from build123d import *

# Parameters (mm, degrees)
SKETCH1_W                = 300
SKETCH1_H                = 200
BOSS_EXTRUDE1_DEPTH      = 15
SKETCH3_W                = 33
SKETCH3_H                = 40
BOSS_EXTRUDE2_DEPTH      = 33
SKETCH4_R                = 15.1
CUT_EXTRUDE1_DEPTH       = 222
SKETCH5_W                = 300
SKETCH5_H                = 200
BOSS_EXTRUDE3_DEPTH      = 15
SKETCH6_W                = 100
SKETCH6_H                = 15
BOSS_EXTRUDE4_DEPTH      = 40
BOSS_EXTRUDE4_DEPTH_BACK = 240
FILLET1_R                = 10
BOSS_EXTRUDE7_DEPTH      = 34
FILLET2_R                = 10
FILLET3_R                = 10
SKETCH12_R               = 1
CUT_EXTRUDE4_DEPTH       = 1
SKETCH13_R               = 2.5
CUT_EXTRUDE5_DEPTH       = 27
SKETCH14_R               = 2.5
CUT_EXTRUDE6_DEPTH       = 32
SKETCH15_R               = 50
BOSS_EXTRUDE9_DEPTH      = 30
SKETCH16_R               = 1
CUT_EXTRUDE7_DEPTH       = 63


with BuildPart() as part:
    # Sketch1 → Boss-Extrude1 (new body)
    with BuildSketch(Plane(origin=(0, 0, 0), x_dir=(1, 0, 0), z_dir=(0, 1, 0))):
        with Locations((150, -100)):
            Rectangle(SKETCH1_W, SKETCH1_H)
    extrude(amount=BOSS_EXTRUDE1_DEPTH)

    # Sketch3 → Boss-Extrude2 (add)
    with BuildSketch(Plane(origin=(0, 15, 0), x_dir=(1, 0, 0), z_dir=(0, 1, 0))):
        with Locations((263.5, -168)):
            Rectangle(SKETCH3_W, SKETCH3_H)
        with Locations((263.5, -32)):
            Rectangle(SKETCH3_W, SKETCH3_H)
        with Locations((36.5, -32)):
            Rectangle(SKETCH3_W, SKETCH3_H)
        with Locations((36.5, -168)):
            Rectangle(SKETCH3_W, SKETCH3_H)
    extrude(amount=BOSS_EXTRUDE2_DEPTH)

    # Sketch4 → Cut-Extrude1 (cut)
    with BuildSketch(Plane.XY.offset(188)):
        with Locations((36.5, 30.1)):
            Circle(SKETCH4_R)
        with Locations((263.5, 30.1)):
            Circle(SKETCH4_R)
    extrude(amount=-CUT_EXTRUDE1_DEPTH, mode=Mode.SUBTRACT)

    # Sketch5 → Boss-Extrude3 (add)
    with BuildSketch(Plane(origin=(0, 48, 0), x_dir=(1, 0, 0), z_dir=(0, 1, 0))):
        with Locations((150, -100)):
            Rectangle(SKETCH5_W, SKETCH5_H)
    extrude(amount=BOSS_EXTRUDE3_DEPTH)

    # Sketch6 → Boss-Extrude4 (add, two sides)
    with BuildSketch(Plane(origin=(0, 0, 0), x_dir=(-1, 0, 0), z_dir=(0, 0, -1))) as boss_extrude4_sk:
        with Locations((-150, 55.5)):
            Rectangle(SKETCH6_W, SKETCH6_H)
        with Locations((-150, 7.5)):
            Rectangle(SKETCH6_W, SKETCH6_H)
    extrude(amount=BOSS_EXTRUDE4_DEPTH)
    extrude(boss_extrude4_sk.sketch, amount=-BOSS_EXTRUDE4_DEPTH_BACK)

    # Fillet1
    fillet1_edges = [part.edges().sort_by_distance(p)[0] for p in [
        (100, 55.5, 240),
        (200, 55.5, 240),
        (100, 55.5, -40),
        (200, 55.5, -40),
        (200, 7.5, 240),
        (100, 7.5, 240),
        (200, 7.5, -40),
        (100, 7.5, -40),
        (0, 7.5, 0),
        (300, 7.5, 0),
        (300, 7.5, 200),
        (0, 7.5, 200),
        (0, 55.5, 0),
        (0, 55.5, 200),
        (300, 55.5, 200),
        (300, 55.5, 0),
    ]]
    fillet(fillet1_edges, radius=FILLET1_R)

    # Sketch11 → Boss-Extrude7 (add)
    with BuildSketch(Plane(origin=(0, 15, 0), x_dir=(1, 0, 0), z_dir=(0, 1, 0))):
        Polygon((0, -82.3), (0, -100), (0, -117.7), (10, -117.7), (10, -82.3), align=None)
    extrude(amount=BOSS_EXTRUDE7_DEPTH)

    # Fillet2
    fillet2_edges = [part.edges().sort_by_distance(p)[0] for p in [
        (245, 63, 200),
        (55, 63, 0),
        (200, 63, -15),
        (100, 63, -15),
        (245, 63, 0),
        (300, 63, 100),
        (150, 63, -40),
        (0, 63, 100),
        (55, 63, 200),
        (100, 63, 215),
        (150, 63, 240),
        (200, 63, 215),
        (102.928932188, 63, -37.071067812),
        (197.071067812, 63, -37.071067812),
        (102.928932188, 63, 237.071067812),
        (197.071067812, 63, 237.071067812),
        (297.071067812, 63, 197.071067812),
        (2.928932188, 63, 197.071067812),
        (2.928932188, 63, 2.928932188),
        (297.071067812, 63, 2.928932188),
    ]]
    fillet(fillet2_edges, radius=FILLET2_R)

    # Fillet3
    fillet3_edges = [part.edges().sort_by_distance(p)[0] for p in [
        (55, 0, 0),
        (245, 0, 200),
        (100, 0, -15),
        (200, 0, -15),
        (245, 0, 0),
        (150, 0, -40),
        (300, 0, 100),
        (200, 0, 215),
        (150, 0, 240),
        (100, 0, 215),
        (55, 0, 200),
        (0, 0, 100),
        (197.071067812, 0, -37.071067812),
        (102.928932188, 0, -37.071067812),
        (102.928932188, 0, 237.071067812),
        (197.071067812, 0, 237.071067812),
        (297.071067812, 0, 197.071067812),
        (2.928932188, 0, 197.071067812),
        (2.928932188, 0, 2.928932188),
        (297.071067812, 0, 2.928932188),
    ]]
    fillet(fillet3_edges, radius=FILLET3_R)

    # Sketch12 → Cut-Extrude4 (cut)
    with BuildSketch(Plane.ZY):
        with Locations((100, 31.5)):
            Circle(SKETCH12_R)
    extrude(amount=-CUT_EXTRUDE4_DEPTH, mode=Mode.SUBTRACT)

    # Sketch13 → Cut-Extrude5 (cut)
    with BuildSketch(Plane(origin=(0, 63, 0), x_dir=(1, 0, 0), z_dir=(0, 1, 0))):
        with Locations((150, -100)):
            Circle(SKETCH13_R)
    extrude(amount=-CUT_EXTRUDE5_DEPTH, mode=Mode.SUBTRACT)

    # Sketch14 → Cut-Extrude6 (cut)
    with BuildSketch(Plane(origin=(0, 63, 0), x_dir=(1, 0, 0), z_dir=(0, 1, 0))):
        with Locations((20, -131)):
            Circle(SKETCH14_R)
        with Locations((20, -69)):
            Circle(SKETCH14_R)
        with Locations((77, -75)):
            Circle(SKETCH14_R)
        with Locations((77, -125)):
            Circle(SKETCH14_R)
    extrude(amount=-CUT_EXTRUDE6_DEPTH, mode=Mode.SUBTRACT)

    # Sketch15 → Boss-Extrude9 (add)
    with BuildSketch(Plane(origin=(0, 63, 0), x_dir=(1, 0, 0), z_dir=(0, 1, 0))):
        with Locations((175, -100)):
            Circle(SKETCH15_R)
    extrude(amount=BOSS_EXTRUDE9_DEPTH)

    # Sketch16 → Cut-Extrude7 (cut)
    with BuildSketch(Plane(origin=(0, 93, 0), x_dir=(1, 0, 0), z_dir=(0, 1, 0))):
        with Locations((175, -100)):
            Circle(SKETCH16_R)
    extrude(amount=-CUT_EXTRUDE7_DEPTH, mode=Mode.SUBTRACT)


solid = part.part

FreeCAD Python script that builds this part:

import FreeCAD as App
import Part
import Sketcher
from FreeCAD import Vector


def edges_at(feature, points):
    """Names of the edges that pass closest to the given points."""
    edges = feature.Shape.Edges
    near = lambda p: min(range(len(edges)), key=lambda i: edges[i].distToShape(Part.Vertex(*p))[0])
    return sorted({f"Edge{near(p) + 1}" for p in points})


def add_polygon(sketch, points):
    """Adds a closed chain of lines whose ends are joined by coincident constraints."""
    first, n = sketch.GeometryCount, len(points)
    for a, b in zip(points, points[1:] + points[:1]):
        sketch.addGeometry(Part.LineSegment(App.Vector(*a, 0), App.Vector(*b, 0)), False)
    for i in range(n):
        sketch.addConstraint(Sketcher.Constraint("Coincident", first + i, 2, first + (i + 1) % n, 1))

doc = App.newDocument("Part")
body = doc.addObject("PartDesign::Body", "Body")

sketch1 = body.newObject("Sketcher::SketchObject", "Sketch")
sketch1.AttachmentSupport = (doc.getObject("XZ_Plane"), [""])
sketch1.MapMode = "FlatFace"
add_polygon(sketch1, [(0, 0), (0, 200), (300, 200), (300, 0)])
sketch1.addConstraint(Sketcher.Constraint("Vertical", 0))
sketch1.addConstraint(Sketcher.Constraint("Horizontal", 1))
sketch1.addConstraint(Sketcher.Constraint("Vertical", 2))
sketch1.addConstraint(Sketcher.Constraint("Horizontal", 3))
sketch1.addConstraint(Sketcher.Constraint("Coincident", 3, 2, -1, 1))
sketch1.addConstraint(Sketcher.Constraint("DistanceX", 1, 1, 1, 2, 300.0))
sketch1.addConstraint(Sketcher.Constraint("DistanceY", 0, 1, 0, 2, 200.0))
pad1 = body.newObject("PartDesign::Pad", "Pad")
pad1.Profile = sketch1
pad1.Length = 15
pad1.Reversed = True

sketch2 = body.newObject("Sketcher::SketchObject", "Sketch001")
sketch2.AttachmentSupport = (doc.getObject("XZ_Plane"), [""])
sketch2.MapMode = "FlatFace"
sketch2.AttachmentOffset = App.Placement(Vector(0, 0, -15), App.Rotation())
add_polygon(sketch2, [(247, 148), (247, 188), (280, 188), (280, 148)])
add_polygon(sketch2, [(247, 12), (247, 52), (280, 52), (280, 12)])
add_polygon(sketch2, [(20, 12), (20, 52), (53, 52), (53, 12)])
add_polygon(sketch2, [(20, 148), (20, 188), (53, 188), (53, 148)])
sketch2.addConstraint(Sketcher.Constraint("Vertical", 0))
sketch2.addConstraint(Sketcher.Constraint("Horizontal", 1))
sketch2.addConstraint(Sketcher.Constraint("Vertical", 2))
sketch2.addConstraint(Sketcher.Constraint("Horizontal", 3))
sketch2.addConstraint(Sketcher.Constraint("Vertical", 4))
sketch2.addConstraint(Sketcher.Constraint("Horizontal", 5))
sketch2.addConstraint(Sketcher.Constraint("Vertical", 6))
sketch2.addConstraint(Sketcher.Constraint("Horizontal", 7))
sketch2.addConstraint(Sketcher.Constraint("Vertical", 8))
sketch2.addConstraint(Sketcher.Constraint("Horizontal", 9))
sketch2.addConstraint(Sketcher.Constraint("Vertical", 10))
sketch2.addConstraint(Sketcher.Constraint("Horizontal", 11))
sketch2.addConstraint(Sketcher.Constraint("Vertical", 12))
sketch2.addConstraint(Sketcher.Constraint("Horizontal", 13))
sketch2.addConstraint(Sketcher.Constraint("Vertical", 14))
sketch2.addConstraint(Sketcher.Constraint("Horizontal", 15))
sketch2.addConstraint(Sketcher.Constraint("Horizontal", 5, 2, 8, 2))
sketch2.addConstraint(Sketcher.Constraint("Horizontal", 7, 2, 10, 2))
sketch2.addConstraint(Sketcher.Constraint("Horizontal", 1, 2, 12, 2))
sketch2.addConstraint(Sketcher.Constraint("Horizontal", 3, 2, 14, 2))
sketch2.addConstraint(Sketcher.Constraint("Vertical", 3, 2, 4, 2))
sketch2.addConstraint(Sketcher.Constraint("Vertical", 2, 2, 5, 2))
sketch2.addConstraint(Sketcher.Constraint("Vertical", 11, 2, 12, 2))
sketch2.addConstraint(Sketcher.Constraint("Vertical", 10, 2, 13, 2))
sketch2.addConstraint(Sketcher.Constraint("Equal", 7, 9))
sketch2.addConstraint(Sketcher.Constraint("Equal", 2, 4))
sketch2.addConstraint(Sketcher.Constraint("DistanceX", 1, 1, 1, 2, 33.0))
sketch2.addConstraint(Sketcher.Constraint("DistanceY", 0, 1, 0, 2, 40.0))
sketch2.addConstraint(Sketcher.Constraint("DistanceX", -1, 1, 0, 2, 247.0))
sketch2.addConstraint(Sketcher.Constraint("DistanceY", -1, 1, 0, 2, 188.0))
sketch2.addConstraint(Sketcher.Constraint("DistanceY", -1, 1, 4, 2, 52.0))
sketch2.addConstraint(Sketcher.Constraint("DistanceX", -1, 1, 8, 2, 20.0))
pad2 = body.newObject("PartDesign::Pad", "Pad001")
pad2.Profile = sketch2
pad2.Length = 33
pad2.Reversed = True

sketch3 = body.newObject("Sketcher::SketchObject", "Sketch002")
sketch3.AttachmentSupport = (doc.getObject("XY_Plane"), [""])
sketch3.MapMode = "FlatFace"
sketch3.AttachmentOffset = App.Placement(Vector(0, 0, 188), App.Rotation())
sketch3.addGeometry(Part.Circle(Vector(36, 30, 0), Vector(0, 0, 1), 15), False)
sketch3.addGeometry(Part.Circle(Vector(264, 30, 0), Vector(0, 0, 1), 15), False)
sketch3.addConstraint(Sketcher.Constraint("Equal", 0, 1))
sketch3.addConstraint(Sketcher.Constraint("Horizontal", 0, 3, 1, 3))
sketch3.addConstraint(Sketcher.Constraint("Diameter", 0, 30.2))
sketch3.addConstraint(Sketcher.Constraint("DistanceX", 0, 3, 1, 3, 227.0))
sketch3.addConstraint(Sketcher.Constraint("DistanceX", -1, 1, 0, 3, 36.5))
sketch3.addConstraint(Sketcher.Constraint("DistanceY", -1, 1, 0, 3, 30.1))
pocket1 = body.newObject("PartDesign::Pocket", "Pocket")
pocket1.Profile = sketch3
pocket1.Length = 222

sketch4 = body.newObject("Sketcher::SketchObject", "Sketch003")
sketch4.AttachmentSupport = (doc.getObject("XZ_Plane"), [""])
sketch4.MapMode = "FlatFace"
sketch4.AttachmentOffset = App.Placement(Vector(0, 0, -48), App.Rotation())
add_polygon(sketch4, [(0, 0), (0, 200), (300, 200), (300, 0)])
sketch4.addConstraint(Sketcher.Constraint("Vertical", 0))
sketch4.addConstraint(Sketcher.Constraint("Horizontal", 1))
sketch4.addConstraint(Sketcher.Constraint("Vertical", 2))
sketch4.addConstraint(Sketcher.Constraint("Horizontal", 3))
sketch4.addConstraint(Sketcher.Constraint("Coincident", 3, 2, -1, 1))
sketch4.addConstraint(Sketcher.Constraint("DistanceX", 1, 1, 1, 2, 300.0))
sketch4.addConstraint(Sketcher.Constraint("DistanceY", 0, 1, 0, 2, 200.0))
pad3 = body.newObject("PartDesign::Pad", "Pad002")
pad3.Profile = sketch4
pad3.Length = 15
pad3.Reversed = True

sketch5 = body.newObject("Sketcher::SketchObject", "Sketch004")
sketch5.AttachmentSupport = (doc.getObject("XY_Plane"), [""])
sketch5.MapMode = "FlatFace"
add_polygon(sketch5, [(200, 63), (200, 48), (100, 48), (100, 63)])
add_polygon(sketch5, [(200, 15), (200, 0), (100, 0), (100, 15)])
sketch5.addConstraint(Sketcher.Constraint("Vertical", 0))
sketch5.addConstraint(Sketcher.Constraint("Horizontal", 1))
sketch5.addConstraint(Sketcher.Constraint("Vertical", 2))
sketch5.addConstraint(Sketcher.Constraint("Horizontal", 3))
sketch5.addConstraint(Sketcher.Constraint("Vertical", 4))
sketch5.addConstraint(Sketcher.Constraint("Horizontal", 5))
sketch5.addConstraint(Sketcher.Constraint("Vertical", 6))
sketch5.addConstraint(Sketcher.Constraint("Horizontal", 7))
sketch5.addConstraint(Sketcher.Constraint("PointOnObject", 4, 2, -1))
sketch5.addConstraint(Sketcher.Constraint("Vertical", 3, 2, 4, 2))
sketch5.addConstraint(Sketcher.Constraint("Vertical", 2, 2, 5, 2))
sketch5.addConstraint(Sketcher.Constraint("Equal", 2, 4))
sketch5.addConstraint(Sketcher.Constraint("DistanceX", 1, 2, 1, 1, 100.0))
sketch5.addConstraint(Sketcher.Constraint("DistanceY", 0, 2, 0, 1, 15.0))
sketch5.addConstraint(Sketcher.Constraint("DistanceX", -1, 1, 0, 2, 200.0))
sketch5.addConstraint(Sketcher.Constraint("DistanceY", -1, 1, 0, 2, 48.0))
pad4 = body.newObject("PartDesign::Pad", "Pad003")
pad4.Profile = sketch5
pad4.Type = "TwoLengths"
pad4.Length = 40
pad4.Length2 = 240
pad4.Reversed = True
doc.recompute()

fillet = body.newObject("PartDesign::Fillet", "Fillet")
fillet.Base = (pad4, edges_at(pad4, [
    (100, 55.5, 240),
    (200, 55.5, 240),
    (100, 55.5, -40),
    (200, 55.5, -40),
    (200, 7.5, 240),
    (100, 7.5, 240),
    (200, 7.5, -40),
    (100, 7.5, -40),
    (0, 7.5, 0),
    (300, 7.5, 0),
    (300, 7.5, 200),
    (0, 7.5, 200),
    (0, 55.5, 0),
    (0, 55.5, 200),
    (300, 55.5, 200),
    (300, 55.5, 0),
]))
fillet.Radius = 10

sketch6 = body.newObject("Sketcher::SketchObject", "Sketch005")
sketch6.AttachmentSupport = (doc.getObject("XZ_Plane"), [""])
sketch6.MapMode = "FlatFace"
sketch6.AttachmentOffset = App.Placement(Vector(0, 0, -15), App.Rotation())
add_polygon(sketch6, [(0, 82), (0, 118), (10, 118), (10, 82)])
sketch6.addConstraint(Sketcher.Constraint("Vertical", 0))
sketch6.addConstraint(Sketcher.Constraint("Horizontal", 1))
sketch6.addConstraint(Sketcher.Constraint("Vertical", 2))
sketch6.addConstraint(Sketcher.Constraint("Horizontal", 3))
sketch6.addConstraint(Sketcher.Constraint("PointOnObject", 0, 2, -2))
sketch6.addConstraint(Sketcher.Constraint("DistanceX", 1, 1, 1, 2, 10.0))
sketch6.addConstraint(Sketcher.Constraint("DistanceY", 0, 1, 0, 2, 35.4))
sketch6.addConstraint(Sketcher.Constraint("DistanceY", -1, 1, 0, 2, 117.7))
pad5 = body.newObject("PartDesign::Pad", "Pad004")
pad5.Profile = sketch6
pad5.Length = 34
pad5.Reversed = True
doc.recompute()

fillet2 = body.newObject("PartDesign::Fillet", "Fillet001")
fillet2.Base = (pad5, edges_at(pad5, [
    (245, 63, 200),
    (55, 63, 0),
    (200, 63, -15),
    (100, 63, -15),
    (245, 63, 0),
    (300, 63, 100),
    (150, 63, -40),
    (0, 63, 100),
    (55, 63, 200),
    (100, 63, 215),
    (150, 63, 240),
    (200, 63, 215),
    (102.929, 63, -37.071),
    (197.071, 63, -37.071),
    (102.929, 63, 237.071),
    (197.071, 63, 237.071),
    (297.071, 63, 197.071),
    (2.929, 63, 197.071),
    (2.929, 63, 2.929),
    (297.071, 63, 2.929),
]))
fillet2.Radius = 10
doc.recompute()

fillet3 = body.newObject("PartDesign::Fillet", "Fillet002")
fillet3.Base = (fillet2, edges_at(fillet2, [
    (55, 0, 0),
    (245, 0, 200),
    (100, 0, -15),
    (200, 0, -15),
    (245, 0, 0),
    (150, 0, -40),
    (300, 0, 100),
    (200, 0, 215),
    (150, 0, 240),
    (100, 0, 215),
    (55, 0, 200),
    (0, 0, 100),
    (197.071, 0, -37.071),
    (102.929, 0, -37.071),
    (102.929, 0, 237.071),
    (197.071, 0, 237.071),
    (297.071, 0, 197.071),
    (2.929, 0, 197.071),
    (2.929, 0, 2.929),
    (297.071, 0, 2.929),
]))
fillet3.Radius = 10

sketch7 = body.newObject("Sketcher::SketchObject", "Sketch006")
sketch7.AttachmentSupport = (doc.getObject("YZ_Plane"), [""])
sketch7.MapMode = "FlatFace"
sketch7.addGeometry(Part.Circle(Vector(31.5, 100, 0), Vector(0, 0, 1), 1), False)
sketch7.addConstraint(Sketcher.Constraint("Diameter", 0, 2.0))
sketch7.addConstraint(Sketcher.Constraint("DistanceY", -1, 1, 0, 3, 100.0))
sketch7.addConstraint(Sketcher.Constraint("DistanceX", -1, 1, 0, 3, 31.5))
pocket2 = body.newObject("PartDesign::Pocket", "Pocket001")
pocket2.Profile = sketch7
pocket2.Length = 1
pocket2.Reversed = True

sketch8 = body.newObject("Sketcher::SketchObject", "Sketch007")
sketch8.AttachmentSupport = (doc.getObject("XZ_Plane"), [""])
sketch8.MapMode = "FlatFace"
sketch8.AttachmentOffset = App.Placement(Vector(0, 0, -63), App.Rotation())
sketch8.addGeometry(Part.Circle(Vector(150, 100, 0), Vector(0, 0, 1), 2.5), False)
sketch8.addConstraint(Sketcher.Constraint("Diameter", 0, 5.0))
sketch8.addConstraint(Sketcher.Constraint("DistanceX", -1, 1, 0, 3, 150.0))
sketch8.addConstraint(Sketcher.Constraint("DistanceY", -1, 1, 0, 3, 100.0))
pocket3 = body.newObject("PartDesign::Pocket", "Pocket002")
pocket3.Profile = sketch8
pocket3.Length = 27
pocket3.Reversed = True

sketch9 = body.newObject("Sketcher::SketchObject", "Sketch008")
sketch9.AttachmentSupport = (doc.getObject("XZ_Plane"), [""])
sketch9.MapMode = "FlatFace"
sketch9.AttachmentOffset = App.Placement(Vector(0, 0, -63), App.Rotation())
sketch9.addGeometry(Part.Circle(Vector(20, 131, 0), Vector(0, 0, 1), 2.5), False)
sketch9.addGeometry(Part.Circle(Vector(20, 69, 0), Vector(0, 0, 1), 2.5), False)
sketch9.addGeometry(Part.Circle(Vector(77, 75, 0), Vector(0, 0, 1), 2.5), False)
sketch9.addGeometry(Part.Circle(Vector(77, 125, 0), Vector(0, 0, 1), 2.5), False)
sketch9.addConstraint(Sketcher.Constraint("Equal", 0, 1))
sketch9.addConstraint(Sketcher.Constraint("Equal", 1, 2))
sketch9.addConstraint(Sketcher.Constraint("Equal", 2, 3))
sketch9.addConstraint(Sketcher.Constraint("Vertical", 0, 3, 1, 3))
sketch9.addConstraint(Sketcher.Constraint("Vertical", 2, 3, 3, 3))
sketch9.addConstraint(Sketcher.Constraint("Diameter", 0, 5.0))
sketch9.addConstraint(Sketcher.Constraint("DistanceX", -1, 1, 0, 3, 20.0))
sketch9.addConstraint(Sketcher.Constraint("DistanceY", -1, 1, 0, 3, 131.0))
sketch9.addConstraint(Sketcher.Constraint("DistanceY", -1, 1, 1, 3, 69.0))
sketch9.addConstraint(Sketcher.Constraint("DistanceX", -1, 1, 2, 3, 77.0))
sketch9.addConstraint(Sketcher.Constraint("DistanceY", -1, 1, 2, 3, 75.0))
sketch9.addConstraint(Sketcher.Constraint("DistanceY", -1, 1, 3, 3, 125.0))
pocket4 = body.newObject("PartDesign::Pocket", "Pocket003")
pocket4.Profile = sketch9
pocket4.Length = 32
pocket4.Reversed = True

sketch10 = body.newObject("Sketcher::SketchObject", "Sketch009")
sketch10.AttachmentSupport = (doc.getObject("XZ_Plane"), [""])
sketch10.MapMode = "FlatFace"
sketch10.AttachmentOffset = App.Placement(Vector(0, 0, -63), App.Rotation())
sketch10.addGeometry(Part.Circle(Vector(175, 100, 0), Vector(0, 0, 1), 50), False)
sketch10.addConstraint(Sketcher.Constraint("Diameter", 0, 100.0))
sketch10.addConstraint(Sketcher.Constraint("DistanceX", -1, 1, 0, 3, 175.0))
sketch10.addConstraint(Sketcher.Constraint("DistanceY", -1, 1, 0, 3, 100.0))
pad6 = body.newObject("PartDesign::Pad", "Pad005")
pad6.Profile = sketch10
pad6.Length = 30
pad6.Reversed = True

sketch11 = body.newObject("Sketcher::SketchObject", "Sketch010")
sketch11.AttachmentSupport = (doc.getObject("XZ_Plane"), [""])
sketch11.MapMode = "FlatFace"
sketch11.AttachmentOffset = App.Placement(Vector(0, 0, -93), App.Rotation())
sketch11.addGeometry(Part.Circle(Vector(175, 100, 0), Vector(0, 0, 1), 1), False)
sketch11.addConstraint(Sketcher.Constraint("Diameter", 0, 2.0))
sketch11.addConstraint(Sketcher.Constraint("DistanceX", -1, 1, 0, 3, 175.0))
sketch11.addConstraint(Sketcher.Constraint("DistanceY", -1, 1, 0, 3, 100.0))
pocket5 = body.newObject("PartDesign::Pocket", "Pocket004")
pocket5.Profile = sketch11
pocket5.Length = 63
pocket5.Reversed = True

doc.recompute()
